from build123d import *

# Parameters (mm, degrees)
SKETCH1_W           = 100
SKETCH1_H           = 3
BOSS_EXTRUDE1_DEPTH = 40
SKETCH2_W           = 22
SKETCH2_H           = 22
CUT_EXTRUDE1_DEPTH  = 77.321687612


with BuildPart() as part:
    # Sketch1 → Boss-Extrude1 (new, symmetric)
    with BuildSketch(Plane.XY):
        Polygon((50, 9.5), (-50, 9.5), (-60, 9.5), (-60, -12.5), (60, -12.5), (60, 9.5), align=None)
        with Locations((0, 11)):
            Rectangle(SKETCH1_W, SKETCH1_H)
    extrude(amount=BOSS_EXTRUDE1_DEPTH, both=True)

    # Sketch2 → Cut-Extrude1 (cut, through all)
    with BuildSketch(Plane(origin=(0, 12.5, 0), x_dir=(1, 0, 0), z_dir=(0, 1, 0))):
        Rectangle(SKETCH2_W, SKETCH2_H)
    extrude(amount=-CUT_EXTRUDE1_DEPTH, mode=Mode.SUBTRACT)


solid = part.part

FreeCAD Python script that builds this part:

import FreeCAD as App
import Part
import Sketcher


def add_polygon(sketch, points):
    """Adds a closed chain of lines whose ends are joined by coincident constraints."""
    first, n = sketch.GeometryCount, len(points)
    for a, b in zip(points, points[1:] + points[:1]):
        sketch.addGeometry(Part.LineSegment(App.Vector(*a, 0), App.Vector(*b, 0)), False)
    for i in range(n):
        sketch.addConstraint(Sketcher.Constraint("Coincident", first + i, 2, first + (i + 1) % n, 1))

doc = App.newDocument("Part")
body = doc.addObject("PartDesign::Body", "Body")

sketch1 = body.newObject("Sketcher::SketchObject", "Sketch")
sketch1.AttachmentSupport = (doc.getObject("XY_Plane"), [""])
sketch1.MapMode = "FlatFace"
add_polygon(sketch1, [(-60, 9.5), (-60, -12.5), (60, -12.5), (60, 9.5), (50, 9.5), (50, 12.5), (-50, 12.5), (-50, 9.5)])
sketch1.addConstraint([
    Sketcher.Constraint("Vertical", 0),
    Sketcher.Constraint("Horizontal", 1),
    Sketcher.Constraint("Vertical", 2),
    Sketcher.Constraint("Horizontal", 3),
    Sketcher.Constraint("Vertical", 4),
    Sketcher.Constraint("Horizontal", 5),
    Sketcher.Constraint("Vertical", 6),
    Sketcher.Constraint("Horizontal", 7),
    Sketcher.Constraint("Symmetric", 3, 2, 6, 2, -2),
    Sketcher.Constraint("Equal", 3, 7),
    Sketcher.Constraint("DistanceX", 1, 1, 1, 2, 120.0),
    Sketcher.Constraint("DistanceX", 3, 2, 3, 1, 10.0),
    Sketcher.Constraint("DistanceY", 0, 2, 0, 1, 22.0),
    Sketcher.Constraint("DistanceY", 4, 1, 4, 2, 3.0),
    Sketcher.Constraint("DistanceY", 0, 2, -1, 1, 12.5),
])
pad1 = body.newObject("PartDesign::Pad", "Pad")
pad1.Profile = sketch1
pad1.Length = 80
pad1.Midplane = True

sketch2 = body.newObject("Sketcher::SketchObject", "Sketch001")
sketch2.AttachmentSupport = (doc.getObject("XZ_Plane"), [""])
sketch2.MapMode = "FlatFace"
sketch2.AttachmentOffset = App.Placement(App.Vector(0, 0, -12.5), App.Rotation())
add_polygon(sketch2, [(-11, -11), (-11, 11), (11, 11), (11, -11)])
sketch2.addConstraint([
    Sketcher.Constraint("Vertical", 0),
    Sketcher.Constraint("Horizontal", 1),
    Sketcher.Constraint("Vertical", 2),
    Sketcher.Constraint("Horizontal", 3),
    Sketcher.Constraint("Symmetric", 0, 2, 2, 2, -1, 1),
    Sketcher.Constraint("Equal", 3, 0),
    Sketcher.Constraint("DistanceX", 1, 1, 1, 2, 22.0),
])
pocket1 = body.newObject("PartDesign::Pocket", "Pocket")
pocket1.Profile = sketch2
pocket1.Type = "ThroughAll"
pocket1.Reversed = True

doc.recompute()
